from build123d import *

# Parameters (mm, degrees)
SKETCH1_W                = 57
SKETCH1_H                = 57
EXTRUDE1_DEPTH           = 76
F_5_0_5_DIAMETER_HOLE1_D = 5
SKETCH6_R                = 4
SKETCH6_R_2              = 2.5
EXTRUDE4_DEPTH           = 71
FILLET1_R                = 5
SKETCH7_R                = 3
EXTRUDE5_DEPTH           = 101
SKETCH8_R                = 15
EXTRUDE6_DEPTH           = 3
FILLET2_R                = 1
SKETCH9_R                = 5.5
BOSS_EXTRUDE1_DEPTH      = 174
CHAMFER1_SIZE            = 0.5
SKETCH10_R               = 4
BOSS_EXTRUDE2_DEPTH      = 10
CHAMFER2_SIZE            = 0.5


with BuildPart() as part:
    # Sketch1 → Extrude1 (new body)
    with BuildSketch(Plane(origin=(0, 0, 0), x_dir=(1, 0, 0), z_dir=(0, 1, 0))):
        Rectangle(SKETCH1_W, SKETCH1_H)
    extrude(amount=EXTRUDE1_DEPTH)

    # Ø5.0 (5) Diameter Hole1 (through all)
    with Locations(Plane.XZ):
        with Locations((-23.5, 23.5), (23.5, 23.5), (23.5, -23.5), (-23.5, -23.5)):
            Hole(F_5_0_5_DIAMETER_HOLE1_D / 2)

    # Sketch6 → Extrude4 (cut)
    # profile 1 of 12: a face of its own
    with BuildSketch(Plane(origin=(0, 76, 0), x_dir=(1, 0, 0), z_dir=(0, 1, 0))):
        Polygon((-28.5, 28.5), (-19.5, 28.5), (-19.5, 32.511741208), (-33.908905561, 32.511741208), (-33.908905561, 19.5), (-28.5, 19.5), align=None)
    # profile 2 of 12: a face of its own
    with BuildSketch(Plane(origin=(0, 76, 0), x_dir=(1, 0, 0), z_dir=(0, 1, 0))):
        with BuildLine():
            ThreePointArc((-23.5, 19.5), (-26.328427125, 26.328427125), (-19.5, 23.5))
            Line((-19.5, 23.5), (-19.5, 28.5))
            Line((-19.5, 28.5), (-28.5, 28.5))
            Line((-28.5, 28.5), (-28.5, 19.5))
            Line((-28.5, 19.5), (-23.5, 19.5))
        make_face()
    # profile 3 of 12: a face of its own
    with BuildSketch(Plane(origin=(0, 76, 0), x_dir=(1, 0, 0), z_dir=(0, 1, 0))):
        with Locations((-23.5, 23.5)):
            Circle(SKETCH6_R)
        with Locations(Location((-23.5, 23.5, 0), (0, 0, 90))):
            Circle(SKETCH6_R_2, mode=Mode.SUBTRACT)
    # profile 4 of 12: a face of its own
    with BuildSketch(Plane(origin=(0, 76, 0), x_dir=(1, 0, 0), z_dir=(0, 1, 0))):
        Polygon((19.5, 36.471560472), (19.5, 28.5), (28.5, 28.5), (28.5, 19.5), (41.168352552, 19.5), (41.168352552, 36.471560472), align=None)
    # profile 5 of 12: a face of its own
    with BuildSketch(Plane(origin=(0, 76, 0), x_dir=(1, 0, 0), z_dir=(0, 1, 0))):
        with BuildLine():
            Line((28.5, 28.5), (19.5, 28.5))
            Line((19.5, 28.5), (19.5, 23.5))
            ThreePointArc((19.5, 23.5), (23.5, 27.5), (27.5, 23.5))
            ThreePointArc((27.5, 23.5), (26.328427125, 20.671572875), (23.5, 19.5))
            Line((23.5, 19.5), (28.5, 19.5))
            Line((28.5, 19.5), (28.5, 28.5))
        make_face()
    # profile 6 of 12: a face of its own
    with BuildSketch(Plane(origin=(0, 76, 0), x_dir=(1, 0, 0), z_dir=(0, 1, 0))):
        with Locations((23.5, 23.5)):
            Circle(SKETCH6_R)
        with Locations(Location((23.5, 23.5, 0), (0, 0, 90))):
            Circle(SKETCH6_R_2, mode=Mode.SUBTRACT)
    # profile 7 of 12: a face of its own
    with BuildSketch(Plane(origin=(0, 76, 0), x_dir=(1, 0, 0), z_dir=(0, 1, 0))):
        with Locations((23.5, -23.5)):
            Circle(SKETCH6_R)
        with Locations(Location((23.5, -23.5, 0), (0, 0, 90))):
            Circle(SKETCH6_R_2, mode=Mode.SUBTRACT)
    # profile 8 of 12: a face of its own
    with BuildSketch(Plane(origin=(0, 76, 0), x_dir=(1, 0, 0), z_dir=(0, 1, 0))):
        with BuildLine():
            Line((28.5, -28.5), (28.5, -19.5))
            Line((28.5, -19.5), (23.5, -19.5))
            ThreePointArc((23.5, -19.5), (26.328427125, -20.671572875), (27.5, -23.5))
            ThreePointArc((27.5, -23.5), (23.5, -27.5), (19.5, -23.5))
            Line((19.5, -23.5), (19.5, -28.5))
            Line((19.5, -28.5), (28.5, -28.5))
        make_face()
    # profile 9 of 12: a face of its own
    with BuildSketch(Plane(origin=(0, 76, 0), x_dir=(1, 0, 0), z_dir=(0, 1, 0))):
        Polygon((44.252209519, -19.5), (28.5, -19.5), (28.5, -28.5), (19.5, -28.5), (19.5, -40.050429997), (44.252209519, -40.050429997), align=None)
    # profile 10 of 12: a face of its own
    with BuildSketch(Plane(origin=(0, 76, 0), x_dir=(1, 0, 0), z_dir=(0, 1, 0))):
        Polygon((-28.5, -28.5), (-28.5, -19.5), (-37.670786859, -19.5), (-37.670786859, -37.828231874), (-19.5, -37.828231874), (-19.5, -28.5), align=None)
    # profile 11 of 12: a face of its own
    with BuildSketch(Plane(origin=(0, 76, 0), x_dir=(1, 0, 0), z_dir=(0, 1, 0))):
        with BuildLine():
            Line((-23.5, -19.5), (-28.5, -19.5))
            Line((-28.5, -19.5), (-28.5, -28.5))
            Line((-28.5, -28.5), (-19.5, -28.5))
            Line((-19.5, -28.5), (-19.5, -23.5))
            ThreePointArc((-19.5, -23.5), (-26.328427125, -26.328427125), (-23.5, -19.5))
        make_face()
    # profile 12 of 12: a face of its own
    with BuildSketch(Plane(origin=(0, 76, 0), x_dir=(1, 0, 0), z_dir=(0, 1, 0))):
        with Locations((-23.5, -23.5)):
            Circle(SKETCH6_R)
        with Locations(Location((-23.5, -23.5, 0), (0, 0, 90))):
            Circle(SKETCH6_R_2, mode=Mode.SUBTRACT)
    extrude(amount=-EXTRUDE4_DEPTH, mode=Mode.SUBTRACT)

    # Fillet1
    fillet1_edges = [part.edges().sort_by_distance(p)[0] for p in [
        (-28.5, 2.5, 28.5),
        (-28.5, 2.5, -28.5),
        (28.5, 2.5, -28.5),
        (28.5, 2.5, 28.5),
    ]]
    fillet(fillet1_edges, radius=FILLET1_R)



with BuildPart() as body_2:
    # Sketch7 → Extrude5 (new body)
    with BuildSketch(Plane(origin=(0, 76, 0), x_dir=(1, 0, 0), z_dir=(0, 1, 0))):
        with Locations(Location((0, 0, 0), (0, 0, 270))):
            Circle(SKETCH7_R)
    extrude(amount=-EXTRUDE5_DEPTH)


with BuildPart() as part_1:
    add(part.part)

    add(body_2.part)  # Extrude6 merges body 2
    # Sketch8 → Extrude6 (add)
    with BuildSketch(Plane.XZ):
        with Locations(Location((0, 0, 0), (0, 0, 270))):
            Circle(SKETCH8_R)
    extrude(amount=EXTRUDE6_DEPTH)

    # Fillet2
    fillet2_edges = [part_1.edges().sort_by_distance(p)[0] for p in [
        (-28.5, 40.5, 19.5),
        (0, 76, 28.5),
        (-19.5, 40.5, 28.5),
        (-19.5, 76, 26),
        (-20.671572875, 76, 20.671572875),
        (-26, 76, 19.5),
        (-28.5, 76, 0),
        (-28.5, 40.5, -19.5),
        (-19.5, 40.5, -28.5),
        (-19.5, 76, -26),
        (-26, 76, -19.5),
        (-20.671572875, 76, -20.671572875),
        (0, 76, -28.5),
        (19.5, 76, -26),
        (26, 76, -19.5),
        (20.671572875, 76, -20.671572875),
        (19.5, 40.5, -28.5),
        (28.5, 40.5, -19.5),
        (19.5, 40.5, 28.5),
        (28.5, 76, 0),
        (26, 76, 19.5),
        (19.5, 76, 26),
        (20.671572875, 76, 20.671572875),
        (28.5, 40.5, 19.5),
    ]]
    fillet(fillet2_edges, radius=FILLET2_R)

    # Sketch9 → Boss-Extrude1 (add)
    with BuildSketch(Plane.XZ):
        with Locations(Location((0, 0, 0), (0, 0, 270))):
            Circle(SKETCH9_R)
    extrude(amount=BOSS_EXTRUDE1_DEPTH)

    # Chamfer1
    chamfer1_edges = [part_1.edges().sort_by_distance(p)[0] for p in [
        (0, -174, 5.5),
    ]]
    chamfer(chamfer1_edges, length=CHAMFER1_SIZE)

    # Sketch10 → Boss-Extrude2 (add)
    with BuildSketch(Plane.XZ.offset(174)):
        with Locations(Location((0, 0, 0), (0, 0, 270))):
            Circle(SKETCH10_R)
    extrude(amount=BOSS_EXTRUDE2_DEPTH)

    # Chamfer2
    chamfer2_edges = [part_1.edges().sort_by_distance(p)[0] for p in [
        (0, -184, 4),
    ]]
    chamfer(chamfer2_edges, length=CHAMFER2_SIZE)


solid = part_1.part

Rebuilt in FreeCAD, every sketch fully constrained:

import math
import FreeCAD as App
import Part
import Sketcher
from FreeCAD import Vector
Q = App.Units.Quantity


def edges_at(feature, points):
    """Names of the edges that pass closest to the given points."""
    edges = feature.Shape.Edges
    near = lambda p: min(range(len(edges)), key=lambda i: edges[i].distToShape(Part.Vertex(*p))[0])
    return sorted({f"Edge{near(p) + 1}" for p in points})


def add_polygon(sketch, points):
    """Adds a closed chain of lines whose ends are joined by coincident constraints."""
    first, n = sketch.GeometryCount, len(points)
    for a, b in zip(points, points[1:] + points[:1]):
        sketch.addGeometry(Part.LineSegment(App.Vector(*a, 0), App.Vector(*b, 0)), False)
    for i in range(n):
        sketch.addConstraint(Sketcher.Constraint("Coincident", first + i, 2, first + (i + 1) % n, 1))

doc = App.newDocument("Part")
body = doc.addObject("PartDesign::Body", "Body")

sketch1 = body.newObject("Sketcher::SketchObject", "Sketch")
sketch1.AttachmentSupport = (doc.getObject("XZ_Plane"), [""])
sketch1.MapMode = "FlatFace"
add_polygon(sketch1, [(-28.5, -28.5), (-28.5, 28.5), (28.5, 28.5), (28.5, -28.5)])
sketch1.addConstraint(Sketcher.Constraint("Vertical", 0))
sketch1.addConstraint(Sketcher.Constraint("Horizontal", 1))
sketch1.addConstraint(Sketcher.Constraint("Vertical", 2))
sketch1.addConstraint(Sketcher.Constraint("Horizontal", 3))
sketch1.addConstraint(Sketcher.Constraint("Symmetric", 0, 2, 2, 2, -1, 1))
sketch1.addConstraint(Sketcher.Constraint("Equal", 3, 0))
sketch1.addConstraint(Sketcher.Constraint("DistanceX", 1, 1, 1, 2, Q("57 mm")))
pad1 = body.newObject("PartDesign::Pad", "Pad")
pad1.Profile = sketch1
pad1.Length = 76
pad1.Reversed = True

sketch2 = body.newObject("Sketcher::SketchObject", "Sketch001")
sketch2.AttachmentSupport = (doc.getObject("XZ_Plane"), [""])
sketch2.MapMode = "FlatFace"
sketch2.addGeometry(Part.Circle(Vector(-23.5, 23.5, 0), Vector(0, 0, 1), 2.5), False)
sketch2.addGeometry(Part.Circle(Vector(23.5, 23.5, 0), Vector(0, 0, 1), 2.5), False)
sketch2.addGeometry(Part.Circle(Vector(23.5, -23.5, 0), Vector(0, 0, 1), 2.5), False)
sketch2.addGeometry(Part.Circle(Vector(-23.5, -23.5, 0), Vector(0, 0, 1), 2.5), False)
sketch2.addConstraint(Sketcher.Constraint("Equal", 0, 1))
sketch2.addConstraint(Sketcher.Constraint("Equal", 1, 2))
sketch2.addConstraint(Sketcher.Constraint("Equal", 2, 3))
sketch2.addConstraint(Sketcher.Constraint("Symmetric", 0, 3, 2, 3, -1, 1))
sketch2.addConstraint(Sketcher.Constraint("Symmetric", 1, 3, 3, 3, -1, 1))
sketch2.addConstraint(Sketcher.Constraint("Symmetric", 0, 3, 1, 3, -2))
sketch2.addConstraint(Sketcher.Constraint("Diameter", 0, Q("5 mm")))
sketch2.addConstraint(Sketcher.Constraint("DistanceX", 0, 3, 1, 3, Q("47 mm")))
sketch2.addConstraint(Sketcher.Constraint("DistanceY", 2, 3, 1, 3, Q("47 mm")))
doc.recompute()
hole = body.newObject("PartDesign::Hole", "Hole")
hole.Profile = sketch2
hole.ThreadType = "None"
hole.Diameter = 5
hole.DepthType = "ThroughAll"

sketch3 = body.newObject("Sketcher::SketchObject", "Sketch002")
sketch3.AttachmentSupport = (doc.getObject("XZ_Plane"), [""])
sketch3.MapMode = "FlatFace"
sketch3.AttachmentOffset = App.Placement(Vector(0, 0, -76), App.Rotation())
sketch3.addGeometry(Part.LineSegment(Vector(-19.5, -32.511741, 0), Vector(-33.908906, -32.511741, 0)), False)
sketch3.addGeometry(Part.LineSegment(Vector(-33.908906, -32.511741, 0), Vector(-33.908906, -19.5, 0)), False)
sketch3.addGeometry(Part.LineSegment(Vector(-33.908906, -19.5, 0), Vector(-23.5, -19.5, 0)), False)
sketch3.addGeometry(Part.ArcOfCircle(Part.Circle(Vector(-23.5, -23.5, 0), Vector(0, 0, 1), 4), math.radians(0), math.radians(90)), False)
sketch3.addGeometry(Part.LineSegment(Vector(-19.5, -23.5, 0), Vector(-19.5, -32.511741, 0)), False)
sketch3.addGeometry(Part.Circle(Vector(-23.5, -23.5, 0), Vector(0, 0, 1), 2.5), False)
sketch3.addGeometry(Part.LineSegment(Vector(19.5, -36.47156, 0), Vector(19.5, -23.5, 0)), False)
sketch3.addGeometry(Part.ArcOfCircle(Part.Circle(Vector(23.5, -23.5, 0), Vector(0, 0, 1), 4), math.radians(90), math.radians(180)), False)
sketch3.addGeometry(Part.LineSegment(Vector(23.5, -19.5, 0), Vector(41.168353, -19.5, 0)), False)
sketch3.addGeometry(Part.LineSegment(Vector(41.168353, -19.5, 0), Vector(41.168353, -36.47156, 0)), False)
sketch3.addGeometry(Part.LineSegment(Vector(41.168353, -36.47156, 0), Vector(19.5, -36.47156, 0)), False)
sketch3.addGeometry(Part.Circle(Vector(23.5, -23.5, 0), Vector(0, 0, 1), 2.5), False)
sketch3.addGeometry(Part.ArcOfCircle(Part.Circle(Vector(23.5, 23.5, 0), Vector(0, 0, 1), 4), math.radians(180), math.radians(270)), False)
sketch3.addGeometry(Part.LineSegment(Vector(19.5, 23.5, 0), Vector(19.5, 40.05043, 0)), False)
sketch3.addGeometry(Part.LineSegment(Vector(19.5, 40.05043, 0), Vector(44.25221, 40.05043, 0)), False)
sketch3.addGeometry(Part.LineSegment(Vector(44.25221, 40.05043, 0), Vector(44.25221, 19.5, 0)), False)
sketch3.addGeometry(Part.LineSegment(Vector(44.25221, 19.5, 0), Vector(23.5, 19.5, 0)), False)
sketch3.addGeometry(Part.Circle(Vector(23.5, 23.5, 0), Vector(0, 0, 1), 2.5), False)
sketch3.addGeometry(Part.LineSegment(Vector(-37.670787, 19.5, 0), Vector(-37.670787, 37.828232, 0)), False)
sketch3.addGeometry(Part.LineSegment(Vector(-37.670787, 37.828232, 0), Vector(-19.5, 37.828232, 0)), False)
sketch3.addGeometry(Part.LineSegment(Vector(-19.5, 37.828232, 0), Vector(-19.5, 23.5, 0)), False)
sketch3.addGeometry(Part.ArcOfCircle(Part.Circle(Vector(-23.5, 23.5, 0), Vector(0, 0, 1), 4), math.radians(-90), math.radians(0)), False)
sketch3.addGeometry(Part.LineSegment(Vector(-23.5, 19.5, 0), Vector(-37.670787, 19.5, 0)), False)
sketch3.addGeometry(Part.Circle(Vector(-23.5, 23.5, 0), Vector(0, 0, 1), 2.5), False)
sketch3.addConstraint(Sketcher.Constraint("Coincident", 0, 2, 1, 1))
sketch3.addConstraint(Sketcher.Constraint("Coincident", 1, 2, 2, 1))
sketch3.addConstraint(Sketcher.Constraint("Tangent", 2, 2, 3, 2))
sketch3.addConstraint(Sketcher.Constraint("Tangent", 3, 1, 4, 1))
sketch3.addConstraint(Sketcher.Constraint("Coincident", 4, 2, 0, 1))
sketch3.addConstraint(Sketcher.Constraint("Tangent", 6, 2, 7, 2))
sketch3.addConstraint(Sketcher.Constraint("Tangent", 7, 1, 8, 1))
sketch3.addConstraint(Sketcher.Constraint("Coincident", 8, 2, 9, 1))
sketch3.addConstraint(Sketcher.Constraint("Coincident", 9, 2, 10, 1))
sketch3.addConstraint(Sketcher.Constraint("Coincident", 10, 2, 6, 1))
sketch3.addConstraint(Sketcher.Constraint("Tangent", 12, 1, 13, 1))
sketch3.addConstraint(Sketcher.Constraint("Coincident", 13, 2, 14, 1))
sketch3.addConstraint(Sketcher.Constraint("Coincident", 14, 2, 15, 1))
sketch3.addConstraint(Sketcher.Constraint("Coincident", 15, 2, 16, 1))
sketch3.addConstraint(Sketcher.Constraint("Tangent", 16, 2, 12, 2))
sketch3.addConstraint(Sketcher.Constraint("Coincident", 18, 2, 19, 1))
sketch3.addConstraint(Sketcher.Constraint("Coincident", 19, 2, 20, 1))
sketch3.addConstraint(Sketcher.Constraint("Tangent", 20, 2, 21, 2))
sketch3.addConstraint(Sketcher.Constraint("Tangent", 21, 1, 22, 1))
sketch3.addConstraint(Sketcher.Constraint("Coincident", 22, 2, 18, 1))
sketch3.addConstraint(Sketcher.Constraint("Horizontal", 0))
sketch3.addConstraint(Sketcher.Constraint("Vertical", 1))
sketch3.addConstraint(Sketcher.Constraint("Horizontal", 2))
sketch3.addConstraint(Sketcher.Constraint("Vertical", 4))
sketch3.addConstraint(Sketcher.Constraint("Vertical", 6))
sketch3.addConstraint(Sketcher.Constraint("Horizontal", 8))
sketch3.addConstraint(Sketcher.Constraint("Vertical", 9))
sketch3.addConstraint(Sketcher.Constraint("Horizontal", 10))
sketch3.addConstraint(Sketcher.Constraint("Vertical", 13))
sketch3.addConstraint(Sketcher.Constraint("Horizontal", 14))
sketch3.addConstraint(Sketcher.Constraint("Vertical", 15))
sketch3.addConstraint(Sketcher.Constraint("Horizontal", 16))
sketch3.addConstraint(Sketcher.Constraint("Vertical", 18))
sketch3.addConstraint(Sketcher.Constraint("Horizontal", 19))
sketch3.addConstraint(Sketcher.Constraint("Vertical", 20))
sketch3.addConstraint(Sketcher.Constraint("Horizontal", 22))
sketch3.addConstraint(Sketcher.Constraint("Coincident", 5, 3, 3, 3))
sketch3.addConstraint(Sketcher.Constraint("Coincident", 11, 3, 7, 3))
sketch3.addConstraint(Sketcher.Constraint("Coincident", 17, 3, 12, 3))
sketch3.addConstraint(Sketcher.Constraint("Coincident", 23, 3, 21, 3))
sketch3.addConstraint(Sketcher.Constraint("Equal", 3, 7))
sketch3.addConstraint(Sketcher.Constraint("Equal", 5, 11))
sketch3.addConstraint(Sketcher.Constraint("Equal", 7, 12))
sketch3.addConstraint(Sketcher.Constraint("Equal", 11, 17))
sketch3.addConstraint(Sketcher.Constraint("Equal", 12, 21))
sketch3.addConstraint(Sketcher.Constraint("Equal", 17, 23))
sketch3.addConstraint(Sketcher.Constraint("Symmetric", 3, 3, 12, 3, -1, 1))
sketch3.addConstraint(Sketcher.Constraint("Symmetric", 7, 3, 21, 3, -1, 1))
sketch3.addConstraint(Sketcher.Constraint("Symmetric", 3, 3, 7, 3, -2))
sketch3.addConstraint(Sketcher.Constraint("Diameter", 5, Q("5 mm")))
sketch3.addConstraint(Sketcher.Constraint("Radius", 3, Q("4 mm")))
sketch3.addConstraint(Sketcher.Constraint("DistanceX", 3, 3, 7, 3, Q("47 mm")))
sketch3.addConstraint(Sketcher.Constraint("DistanceY", 7, 3, 12, 3, Q("47 mm")))
sketch3.addConstraint(Sketcher.Constraint("DistanceX", 14, 1, 14, 2, Q("24.75221 mm")))
sketch3.addConstraint(Sketcher.Constraint("DistanceY", 1, 1, 1, 2, Q("13.011741 mm")))
sketch3.addConstraint(Sketcher.Constraint("DistanceY", 6, 1, 6, 2, Q("12.97156 mm")))
sketch3.addConstraint(Sketcher.Constraint("DistanceY", 13, 1, 13, 2, Q("16.55043 mm")))
sketch3.addConstraint(Sketcher.Constraint("DistanceY", 18, 1, 18, 2, Q("18.328232 mm")))
sketch3.addConstraint(Sketcher.Constraint("DistanceX", 0, 2, 0, 1, Q("14.408906 mm")))
sketch3.addConstraint(Sketcher.Constraint("DistanceX", 8, 1, 8, 2, Q("17.668353 mm")))
sketch3.addConstraint(Sketcher.Constraint("DistanceX", 19, 1, 19, 2, Q("18.170787 mm")))
pocket1 = body.newObject("PartDesign::Pocket", "Pocket")
pocket1.Profile = sketch3
pocket1.Length = 71
pocket1.Reversed = True
doc.recompute()

fillet = body.newObject("PartDesign::Fillet", "Fillet")
fillet.Base = (pocket1, edges_at(pocket1, [
    (-28.5, 2.5, 28.5),
    (-28.5, 2.5, -28.5),
    (28.5, 2.5, -28.5),
    (28.5, 2.5, 28.5),
]))
fillet.Radius = 5
body2 = doc.addObject("PartDesign::Body", "Body001")

sketch4 = body2.newObject("Sketcher::SketchObject", "Sketch003")
sketch4.AttachmentSupport = (doc.getObject("XZ_Plane001"), [""])
sketch4.MapMode = "FlatFace"
sketch4.AttachmentOffset = App.Placement(Vector(0, 0, -76), App.Rotation())
sketch4.addGeometry(Part.Circle(Vector(0, 0, 0), Vector(0, 0, 1), 3), False)
sketch4.addConstraint(Sketcher.Constraint("Coincident", 0, 3, -1, 1))
sketch4.addConstraint(Sketcher.Constraint("Diameter", 0, Q("6 mm")))
pad2 = body2.newObject("PartDesign::Pad", "Pad001")
pad2.Profile = sketch4
pad2.Length = 101
doc.recompute()

boolean = body.newObject("PartDesign::Boolean", "Boolean")
boolean.Type = "Fuse"
boolean.addObjects([body2])

sketch5 = body.newObject("Sketcher::SketchObject", "Sketch004")
sketch5.AttachmentSupport = (doc.getObject("XZ_Plane"), [""])
sketch5.MapMode = "FlatFace"
sketch5.addGeometry(Part.Circle(Vector(0, 0, 0), Vector(0, 0, 1), 15), False)
sketch5.addConstraint(Sketcher.Constraint("Coincident", 0, 3, -1, 1))
sketch5.addConstraint(Sketcher.Constraint("Diameter", 0, Q("30 mm")))
pad3 = body.newObject("PartDesign::Pad", "Pad002")
pad3.Profile = sketch5
pad3.Length = 3
doc.recompute()

fillet2 = body.newObject("PartDesign::Fillet", "Fillet001")
fillet2.Base = (pad3, edges_at(pad3, [
    (-28.5, 40.5, 19.5),
    (0, 76, 28.5),
    (-19.5, 40.5, 28.5),
    (-19.5, 76, 26),
    (-20.672, 76, 20.672),
    (-26, 76, 19.5),
    (-28.5, 76, 0),
    (-28.5, 40.5, -19.5),
    (-19.5, 40.5, -28.5),
    (-19.5, 76, -26),
    (-26, 76, -19.5),
    (-20.672, 76, -20.672),
    (0, 76, -28.5),
    (19.5, 76, -26),
    (26, 76, -19.5),
    (20.672, 76, -20.672),
    (19.5, 40.5, -28.5),
    (28.5, 40.5, -19.5),
    (19.5, 40.5, 28.5),
    (28.5, 76, 0),
    (26, 76, 19.5),
    (19.5, 76, 26),
    (20.672, 76, 20.672),
    (28.5, 40.5, 19.5),
]))
fillet2.Radius = 1

sketch6 = body.newObject("Sketcher::SketchObject", "Sketch005")
sketch6.AttachmentSupport = (doc.getObject("XZ_Plane"), [""])
sketch6.MapMode = "FlatFace"
sketch6.addGeometry(Part.Circle(Vector(0, 0, 0), Vector(0, 0, 1), 5.5), False)
sketch6.addConstraint(Sketcher.Constraint("Coincident", 0, 3, -1, 1))
sketch6.addConstraint(Sketcher.Constraint("Diameter", 0, Q("11 mm")))
pad4 = body.newObject("PartDesign::Pad", "Pad003")
pad4.Profile = sketch6
pad4.Length = 174
doc.recompute()

chamfer = body.newObject("PartDesign::Chamfer", "Chamfer")
chamfer.Base = (pad4, edges_at(pad4, [(0, -174, 5.5)]))
chamfer.Size = 0.5

sketch7 = body.newObject("Sketcher::SketchObject", "Sketch006")
sketch7.AttachmentSupport = (doc.getObject("XZ_Plane"), [""])
sketch7.MapMode = "FlatFace"
sketch7.AttachmentOffset = App.Placement(Vector(0, 0, 174), App.Rotation())
sketch7.addGeometry(Part.Circle(Vector(0, 0, 0), Vector(0, 0, 1), 4), False)
sketch7.addConstraint(Sketcher.Constraint("Coincident", 0, 3, -1, 1))
sketch7.addConstraint(Sketcher.Constraint("Diameter", 0, Q("8 mm")))
pad5 = body.newObject("PartDesign::Pad", "Pad004")
pad5.Profile = sketch7
pad5.Length = 10
doc.recompute()

chamfer2 = body.newObject("PartDesign::Chamfer", "Chamfer001")
chamfer2.Base = (pad5, edges_at(pad5, [(0, -184, 4)]))
chamfer2.Size = 0.5

doc.recompute()
